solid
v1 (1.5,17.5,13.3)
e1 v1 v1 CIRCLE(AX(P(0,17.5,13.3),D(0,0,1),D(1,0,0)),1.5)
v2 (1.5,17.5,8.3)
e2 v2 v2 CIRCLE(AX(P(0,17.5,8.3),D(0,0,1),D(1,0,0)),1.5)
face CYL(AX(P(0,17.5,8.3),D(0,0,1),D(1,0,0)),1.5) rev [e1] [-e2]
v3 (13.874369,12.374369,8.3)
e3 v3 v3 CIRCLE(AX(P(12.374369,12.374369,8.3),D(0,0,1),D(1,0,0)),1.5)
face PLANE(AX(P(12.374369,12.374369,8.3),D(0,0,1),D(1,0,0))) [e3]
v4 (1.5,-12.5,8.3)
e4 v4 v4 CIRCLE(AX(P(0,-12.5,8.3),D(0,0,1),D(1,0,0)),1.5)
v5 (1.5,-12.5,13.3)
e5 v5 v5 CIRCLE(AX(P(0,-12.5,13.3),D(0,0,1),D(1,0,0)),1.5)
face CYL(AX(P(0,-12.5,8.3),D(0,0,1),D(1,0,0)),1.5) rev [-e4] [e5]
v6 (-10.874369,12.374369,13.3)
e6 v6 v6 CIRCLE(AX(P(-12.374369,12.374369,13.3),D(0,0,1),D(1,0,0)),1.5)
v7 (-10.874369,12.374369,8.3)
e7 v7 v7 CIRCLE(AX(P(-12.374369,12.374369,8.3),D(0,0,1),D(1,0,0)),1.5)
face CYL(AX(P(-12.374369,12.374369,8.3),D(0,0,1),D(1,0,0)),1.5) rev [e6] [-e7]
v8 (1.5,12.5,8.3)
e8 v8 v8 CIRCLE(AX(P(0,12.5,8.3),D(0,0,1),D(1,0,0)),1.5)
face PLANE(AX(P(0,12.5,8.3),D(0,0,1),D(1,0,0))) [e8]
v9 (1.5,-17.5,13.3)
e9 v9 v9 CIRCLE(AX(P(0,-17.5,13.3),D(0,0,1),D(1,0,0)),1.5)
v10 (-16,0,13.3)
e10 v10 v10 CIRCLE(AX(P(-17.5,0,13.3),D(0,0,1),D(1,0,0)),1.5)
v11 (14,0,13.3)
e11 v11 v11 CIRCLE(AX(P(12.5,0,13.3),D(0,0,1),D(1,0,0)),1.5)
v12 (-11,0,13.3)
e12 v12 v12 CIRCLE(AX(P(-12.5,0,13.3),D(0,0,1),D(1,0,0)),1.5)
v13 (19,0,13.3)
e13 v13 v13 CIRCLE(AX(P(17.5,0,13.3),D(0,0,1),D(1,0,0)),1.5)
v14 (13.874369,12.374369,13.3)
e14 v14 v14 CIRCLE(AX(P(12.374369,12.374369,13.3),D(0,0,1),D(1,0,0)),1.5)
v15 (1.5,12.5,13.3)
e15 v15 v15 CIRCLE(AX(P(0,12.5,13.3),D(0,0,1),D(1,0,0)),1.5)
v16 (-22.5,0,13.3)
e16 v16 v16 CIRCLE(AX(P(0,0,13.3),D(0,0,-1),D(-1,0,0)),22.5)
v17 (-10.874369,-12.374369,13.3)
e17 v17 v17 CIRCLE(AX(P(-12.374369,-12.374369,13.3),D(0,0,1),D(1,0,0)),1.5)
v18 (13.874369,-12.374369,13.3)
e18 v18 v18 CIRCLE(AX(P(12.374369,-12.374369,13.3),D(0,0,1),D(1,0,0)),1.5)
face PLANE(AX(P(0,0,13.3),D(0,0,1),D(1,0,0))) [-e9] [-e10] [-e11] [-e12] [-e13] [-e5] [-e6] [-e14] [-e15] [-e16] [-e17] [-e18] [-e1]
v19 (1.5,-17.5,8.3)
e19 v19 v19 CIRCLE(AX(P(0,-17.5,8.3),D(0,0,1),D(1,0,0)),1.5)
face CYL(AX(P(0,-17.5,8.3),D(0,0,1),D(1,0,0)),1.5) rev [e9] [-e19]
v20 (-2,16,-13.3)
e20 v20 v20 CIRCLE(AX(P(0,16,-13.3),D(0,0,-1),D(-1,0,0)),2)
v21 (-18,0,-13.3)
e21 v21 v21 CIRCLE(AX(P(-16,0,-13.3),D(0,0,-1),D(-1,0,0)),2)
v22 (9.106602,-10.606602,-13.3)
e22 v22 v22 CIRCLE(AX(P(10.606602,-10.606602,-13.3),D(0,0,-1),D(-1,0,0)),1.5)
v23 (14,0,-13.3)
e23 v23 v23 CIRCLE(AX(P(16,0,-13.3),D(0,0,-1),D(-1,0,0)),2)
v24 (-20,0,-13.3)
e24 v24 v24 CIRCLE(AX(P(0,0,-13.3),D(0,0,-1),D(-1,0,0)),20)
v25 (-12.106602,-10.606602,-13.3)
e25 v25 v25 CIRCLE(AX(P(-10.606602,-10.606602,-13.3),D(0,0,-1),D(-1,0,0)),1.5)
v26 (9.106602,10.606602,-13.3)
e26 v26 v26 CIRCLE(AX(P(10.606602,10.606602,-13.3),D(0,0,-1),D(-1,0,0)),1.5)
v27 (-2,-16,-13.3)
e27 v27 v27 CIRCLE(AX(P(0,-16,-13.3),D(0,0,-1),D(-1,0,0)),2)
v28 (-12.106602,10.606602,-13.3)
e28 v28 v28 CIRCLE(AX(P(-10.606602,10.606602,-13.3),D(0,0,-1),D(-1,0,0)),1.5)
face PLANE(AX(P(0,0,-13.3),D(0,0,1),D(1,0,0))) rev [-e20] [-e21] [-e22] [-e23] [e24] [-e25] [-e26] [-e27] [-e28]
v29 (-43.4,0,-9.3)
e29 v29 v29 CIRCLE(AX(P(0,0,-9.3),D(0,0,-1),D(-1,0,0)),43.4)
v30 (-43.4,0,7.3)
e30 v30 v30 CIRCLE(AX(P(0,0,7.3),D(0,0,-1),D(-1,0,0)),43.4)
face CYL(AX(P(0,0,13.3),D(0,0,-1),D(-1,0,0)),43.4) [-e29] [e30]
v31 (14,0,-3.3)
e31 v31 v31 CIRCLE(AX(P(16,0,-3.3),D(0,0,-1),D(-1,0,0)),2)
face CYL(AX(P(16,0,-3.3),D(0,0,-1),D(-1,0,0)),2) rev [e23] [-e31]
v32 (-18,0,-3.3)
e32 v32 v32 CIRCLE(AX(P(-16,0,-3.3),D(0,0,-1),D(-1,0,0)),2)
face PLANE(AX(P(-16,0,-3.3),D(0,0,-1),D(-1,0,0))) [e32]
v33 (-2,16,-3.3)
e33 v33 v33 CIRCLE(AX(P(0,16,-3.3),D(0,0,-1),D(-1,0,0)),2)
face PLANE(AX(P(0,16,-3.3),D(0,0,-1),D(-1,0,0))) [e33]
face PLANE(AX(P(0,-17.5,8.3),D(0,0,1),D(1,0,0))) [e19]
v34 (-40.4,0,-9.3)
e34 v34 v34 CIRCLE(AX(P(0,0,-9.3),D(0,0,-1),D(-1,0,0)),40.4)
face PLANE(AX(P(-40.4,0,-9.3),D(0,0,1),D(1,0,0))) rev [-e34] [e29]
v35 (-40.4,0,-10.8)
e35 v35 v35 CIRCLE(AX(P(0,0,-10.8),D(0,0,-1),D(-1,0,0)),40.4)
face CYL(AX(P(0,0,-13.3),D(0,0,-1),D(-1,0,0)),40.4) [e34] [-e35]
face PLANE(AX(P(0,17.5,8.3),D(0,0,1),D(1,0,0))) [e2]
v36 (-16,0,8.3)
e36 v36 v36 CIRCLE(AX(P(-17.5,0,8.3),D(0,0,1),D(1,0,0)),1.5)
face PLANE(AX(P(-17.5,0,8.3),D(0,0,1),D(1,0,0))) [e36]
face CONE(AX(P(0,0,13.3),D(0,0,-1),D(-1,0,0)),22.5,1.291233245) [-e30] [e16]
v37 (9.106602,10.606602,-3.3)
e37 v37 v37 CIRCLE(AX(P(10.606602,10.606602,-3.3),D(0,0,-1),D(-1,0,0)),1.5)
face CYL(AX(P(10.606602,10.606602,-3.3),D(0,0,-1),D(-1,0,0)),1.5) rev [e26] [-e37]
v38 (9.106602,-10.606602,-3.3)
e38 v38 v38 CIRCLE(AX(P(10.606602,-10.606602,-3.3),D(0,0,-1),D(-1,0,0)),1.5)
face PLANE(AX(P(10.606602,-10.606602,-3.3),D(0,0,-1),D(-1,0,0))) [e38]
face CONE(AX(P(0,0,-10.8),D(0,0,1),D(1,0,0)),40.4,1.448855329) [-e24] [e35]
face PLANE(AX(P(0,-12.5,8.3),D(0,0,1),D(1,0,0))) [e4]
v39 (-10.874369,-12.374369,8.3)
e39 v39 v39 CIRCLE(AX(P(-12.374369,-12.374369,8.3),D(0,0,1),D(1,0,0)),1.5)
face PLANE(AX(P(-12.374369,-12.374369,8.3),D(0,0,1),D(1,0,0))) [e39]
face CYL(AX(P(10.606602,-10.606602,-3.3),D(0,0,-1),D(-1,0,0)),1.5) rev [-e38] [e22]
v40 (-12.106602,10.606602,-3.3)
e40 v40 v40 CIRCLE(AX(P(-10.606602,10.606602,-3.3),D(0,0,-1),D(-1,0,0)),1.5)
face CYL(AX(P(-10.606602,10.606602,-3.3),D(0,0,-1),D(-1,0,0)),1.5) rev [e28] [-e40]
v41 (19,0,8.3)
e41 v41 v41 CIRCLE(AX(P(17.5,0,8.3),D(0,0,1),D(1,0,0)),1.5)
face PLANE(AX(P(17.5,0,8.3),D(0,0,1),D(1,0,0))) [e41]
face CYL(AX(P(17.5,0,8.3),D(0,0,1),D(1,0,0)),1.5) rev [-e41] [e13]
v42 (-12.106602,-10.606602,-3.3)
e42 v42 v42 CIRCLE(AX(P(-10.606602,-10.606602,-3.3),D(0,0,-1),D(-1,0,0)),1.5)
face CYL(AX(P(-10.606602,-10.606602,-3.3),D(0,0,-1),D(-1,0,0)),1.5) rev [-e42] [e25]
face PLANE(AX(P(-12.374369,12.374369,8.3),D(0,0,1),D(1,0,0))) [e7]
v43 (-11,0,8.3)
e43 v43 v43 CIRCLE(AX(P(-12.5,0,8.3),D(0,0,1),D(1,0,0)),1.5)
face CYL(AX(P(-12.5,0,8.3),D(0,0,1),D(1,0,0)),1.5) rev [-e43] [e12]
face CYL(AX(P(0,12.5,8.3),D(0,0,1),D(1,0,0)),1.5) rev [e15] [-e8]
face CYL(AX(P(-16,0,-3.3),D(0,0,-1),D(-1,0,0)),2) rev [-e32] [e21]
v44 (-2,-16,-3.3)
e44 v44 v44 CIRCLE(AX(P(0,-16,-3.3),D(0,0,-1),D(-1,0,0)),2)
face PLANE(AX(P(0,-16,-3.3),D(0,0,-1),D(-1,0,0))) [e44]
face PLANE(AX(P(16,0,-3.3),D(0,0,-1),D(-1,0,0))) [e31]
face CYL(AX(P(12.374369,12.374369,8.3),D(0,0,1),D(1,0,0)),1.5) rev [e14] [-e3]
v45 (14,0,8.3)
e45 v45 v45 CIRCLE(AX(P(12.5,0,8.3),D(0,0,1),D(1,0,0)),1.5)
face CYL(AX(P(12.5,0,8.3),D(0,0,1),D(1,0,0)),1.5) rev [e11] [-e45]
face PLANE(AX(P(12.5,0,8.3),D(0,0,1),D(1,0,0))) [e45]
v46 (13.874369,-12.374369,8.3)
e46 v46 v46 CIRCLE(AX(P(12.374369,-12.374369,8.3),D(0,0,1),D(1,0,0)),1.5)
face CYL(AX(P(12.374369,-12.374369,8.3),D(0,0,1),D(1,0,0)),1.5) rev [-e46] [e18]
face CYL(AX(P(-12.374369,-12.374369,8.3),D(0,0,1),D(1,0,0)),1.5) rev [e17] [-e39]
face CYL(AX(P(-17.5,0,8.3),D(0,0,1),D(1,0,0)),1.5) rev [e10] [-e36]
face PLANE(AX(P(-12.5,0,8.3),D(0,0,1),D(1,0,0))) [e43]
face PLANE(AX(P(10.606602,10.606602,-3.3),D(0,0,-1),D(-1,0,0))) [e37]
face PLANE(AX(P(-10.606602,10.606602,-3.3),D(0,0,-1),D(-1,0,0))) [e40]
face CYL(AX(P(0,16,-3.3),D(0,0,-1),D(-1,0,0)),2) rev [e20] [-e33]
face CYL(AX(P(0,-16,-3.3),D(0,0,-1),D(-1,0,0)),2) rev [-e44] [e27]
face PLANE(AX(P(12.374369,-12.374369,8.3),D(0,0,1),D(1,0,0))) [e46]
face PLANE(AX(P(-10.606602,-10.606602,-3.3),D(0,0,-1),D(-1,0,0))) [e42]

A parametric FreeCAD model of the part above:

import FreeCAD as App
import Part
import Sketcher
from FreeCAD import Vector

doc = App.newDocument("Part")
params = doc.addObject("Spreadsheet::Sheet", "Params")
for row, (alias, value) in enumerate([
    ("sketch1_diameter", "86.8 mm"),
    ("pad1_length", "26.6 mm"),
    ("sketch2_width", "3 mm"),
    ("sketch2_height", "6 mm"),
    ("sketch2_height2", "4 mm"),
    ("sketch2_width2", "20.9 mm"),
    ("sketch2_width3", "23.4 mm"),
    ("groove_angle", "360 deg"),
    ("sketch3_diameter", "3 mm"),
    ("sketch3_diameter2", "4 mm"),
    ("pocket1_length", "10 mm"),
    ("sketch4_diameter", "3 mm"),
    ("pocket2_length", "5 mm"),
], start=1):
    params.set(f"A{row}", alias)
    params.set(f"B{row}", "=" + value)
    params.setAlias(f"B{row}", alias)

body = doc.addObject("PartDesign::Body", "Body")

sketch1 = body.newObject("Sketcher::SketchObject", "Sketch")
sketch1.AttachmentSupport = (doc.getObject("XY_Plane"), [""])
sketch1.MapMode = "FlatFace"
sketch1.addGeometry(Part.Circle(Vector(0, 0, 0), Vector(0, 0, 1), 43), False)
sketch1.addConstraint([
    Sketcher.Constraint("Coincident", 0, 3, -1, 1),
    Sketcher.Constraint("Diameter", 0, 86.8),
])
sketch1.setExpression("Constraints[1]", "Params.sketch1_diameter")
pad1 = body.newObject("PartDesign::Pad", "Pad")
pad1.Profile = sketch1
pad1.setExpression("Length", "Params.pad1_length")
pad1.Midplane = True

sketch2 = body.newObject("Sketcher::SketchObject", "Sketch001")
sketch2.AttachmentSupport = (doc.getObject("XZ_Plane"), [""])
sketch2.MapMode = "FlatFace"
sketch2.addGeometry([
    Part.LineSegment(Vector(-22.5, 13.3, 0), Vector(-43.4, 7.3, 0)),
    Part.LineSegment(Vector(-43.4, 7.3, 0), Vector(-43.4, 13.3, 0)),
    Part.LineSegment(Vector(-43.4, 13.3, 0), Vector(-22.5, 13.3, 0)),
    Part.LineSegment(Vector(-43.4, -13.3, 0), Vector(-43.4, -9.3, 0)),
    Part.LineSegment(Vector(-43.4, -9.3, 0), Vector(-40.4, -9.3, 0)),
    Part.LineSegment(Vector(-40.4, -9.3, 0), Vector(-40.4, -10.8, 0)),
    Part.LineSegment(Vector(-40.4, -10.8, 0), Vector(-20, -13.3, 0)),
    Part.LineSegment(Vector(-20, -13.3, 0), Vector(-43.4, -13.3, 0)),
], False)
sketch2.addConstraint([
    Sketcher.Constraint("Coincident", 0, 2, 1, 1),
    Sketcher.Constraint("Coincident", 1, 2, 2, 1),
    Sketcher.Constraint("Coincident", 2, 2, 0, 1),
    Sketcher.Constraint("Coincident", 3, 2, 4, 1),
    Sketcher.Constraint("Coincident", 4, 2, 5, 1),
    Sketcher.Constraint("Coincident", 5, 2, 6, 1),
    Sketcher.Constraint("Coincident", 6, 2, 7, 1),
    Sketcher.Constraint("Coincident", 7, 2, 3, 1),
    Sketcher.Constraint("Vertical", 1),
    Sketcher.Constraint("Horizontal", 2),
    Sketcher.Constraint("Vertical", 3),
    Sketcher.Constraint("Horizontal", 4),
    Sketcher.Constraint("Vertical", 5),
    Sketcher.Constraint("Horizontal", 7),
    Sketcher.Constraint("Symmetric", 1, 2, 7, 2, -1),
    Sketcher.Constraint("DistanceX", 4, 1, 4, 2, 3.0),
    Sketcher.Constraint("DistanceY", 1, 1, 1, 2, 6.0),
    Sketcher.Constraint("DistanceY", 3, 1, 3, 2, 4.0),
    Sketcher.Constraint("DistanceX", 2, 1, 2, 2, 20.9),
    Sketcher.Constraint("DistanceX", 7, 2, 7, 1, 23.4),
    Sketcher.Constraint("DistanceY", 5, 2, 5, 1, 1.5),
    Sketcher.Constraint("DistanceX", 6, 2, -1, 1, 20.0),
    Sketcher.Constraint("DistanceY", -1, 1, 0, 2, 7.3),
])
sketch2.setExpression("Constraints[15]", "Params.sketch2_width")
sketch2.setExpression("Constraints[16]", "Params.sketch2_height")
sketch2.setExpression("Constraints[17]", "Params.sketch2_height2")
sketch2.setExpression("Constraints[18]", "Params.sketch2_width2")
sketch2.setExpression("Constraints[19]", "Params.sketch2_width3")
groove = body.newObject("PartDesign::Groove", "Groove")
groove.Profile = sketch2
groove.ReferenceAxis = (sketch2, ["V_Axis"])
groove.setExpression("Angle", "Params.groove_angle")

sketch3 = body.newObject("Sketcher::SketchObject", "Sketch002")
sketch3.AttachmentSupport = (doc.getObject("XY_Plane"), [""])
sketch3.MapMode = "FlatFace"
sketch3.AttachmentOffset = App.Placement(Vector(0, 0, -13.3), App.Rotation())
sketch3.addGeometry([
    Part.Circle(Vector(-10.6, 10.6, 0), Vector(0, 0, 1), 1.5),
    Part.Circle(Vector(-10.6, -10.6, 0), Vector(0, 0, 1), 1.5),
    Part.Circle(Vector(10.6, -10.6, 0), Vector(0, 0, 1), 1.5),
    Part.Circle(Vector(10.6, 10.6, 0), Vector(0, 0, 1), 1.5),
    Part.Circle(Vector(0, 16, 0), Vector(0, 0, 1), 2),
    Part.Circle(Vector(-16, 0, 0), Vector(0, 0, 1), 2),
    Part.Circle(Vector(0, -16, 0), Vector(0, 0, 1), 2),
    Part.Circle(Vector(16, 0, 0), Vector(0, 0, 1), 2),
], False)
sketch3.addConstraint([
    Sketcher.Constraint("Equal", 0, 1),
    Sketcher.Constraint("Equal", 1, 2),
    Sketcher.Constraint("Equal", 2, 3),
    Sketcher.Constraint("Equal", 4, 5),
    Sketcher.Constraint("Equal", 5, 6),
    Sketcher.Constraint("Equal", 6, 7),
    Sketcher.Constraint("Symmetric", 0, 3, 2, 3, -1, 1),
    Sketcher.Constraint("Symmetric", 1, 3, 3, 3, -1, 1),
    Sketcher.Constraint("Symmetric", 4, 3, 6, 3, -1, 1),
    Sketcher.Constraint("Symmetric", 5, 3, 7, 3, -1, 1),
    Sketcher.Constraint("Symmetric", 1, 3, 2, 3, -2),
    Sketcher.Constraint("PointOnObject", 4, 3, -2),
    Sketcher.Constraint("PointOnObject", 5, 3, -1),
    Sketcher.Constraint("Diameter", 0, 3.0),
    Sketcher.Constraint("Diameter", 4, 4.0),
    Sketcher.Constraint("DistanceY", -1, 1, 4, 3, 16.0),
    Sketcher.Constraint("DistanceX", 5, 3, -1, 1, 16.0),
    Sketcher.Constraint("DistanceX", 0, 3, -1, 1, 10.606602),
    Sketcher.Constraint("DistanceY", -1, 1, 0, 3, 10.606602),
])
sketch3.setExpression("Constraints[13]", "Params.sketch3_diameter")
sketch3.setExpression("Constraints[14]", "Params.sketch3_diameter2")
pocket1 = body.newObject("PartDesign::Pocket", "Pocket")
pocket1.Profile = sketch3
pocket1.setExpression("Length", "Params.pocket1_length")
pocket1.Reversed = True

sketch4 = body.newObject("Sketcher::SketchObject", "Sketch003")
sketch4.AttachmentSupport = (doc.getObject("XY_Plane"), [""])
sketch4.MapMode = "FlatFace"
sketch4.AttachmentOffset = App.Placement(Vector(0, 0, 13.3), App.Rotation())
sketch4.addGeometry([
    Part.Circle(Vector(0, 17.5, 0), Vector(0, 0, 1), 1.5),
    Part.Circle(Vector(0, 12.5, 0), Vector(0, 0, 1), 1.5),
    Part.Circle(Vector(12.4, 12.4, 0), Vector(0, 0, 1), 1.5),
    Part.Circle(Vector(17.5, 0, 0), Vector(0, 0, 1), 1.5),
    Part.Circle(Vector(12.4, -12.4, 0), Vector(0, 0, 1), 1.5),
    Part.Circle(Vector(0, -17.5, 0), Vector(0, 0, 1), 1.5),
    Part.Circle(Vector(-12.4, -12.4, 0), Vector(0, 0, 1), 1.5),
    Part.Circle(Vector(-17.5, 0, 0), Vector(0, 0, 1), 1.5),
    Part.Circle(Vector(-12.4, 12.4, 0), Vector(0, 0, 1), 1.5),
    Part.Circle(Vector(12.5, 0, 0), Vector(0, 0, 1), 1.5),
    Part.Circle(Vector(0, -12.5, 0), Vector(0, 0, 1), 1.5),
    Part.Circle(Vector(-12.5, 0, 0), Vector(0, 0, 1), 1.5),
], False)
sketch4.addConstraint([
    Sketcher.Constraint("Equal", 0, 1),
    Sketcher.Constraint("Equal", 1, 2),
    Sketcher.Constraint("Equal", 2, 3),
    Sketcher.Constraint("Equal", 3, 4),
    Sketcher.Constraint("Equal", 4, 5),
    Sketcher.Constraint("Equal", 5, 6),
    Sketcher.Constraint("Equal", 6, 7),
    Sketcher.Constraint("Equal", 7, 8),
    Sketcher.Constraint("Equal", 8, 9),
    Sketcher.Constraint("Equal", 9, 10),
    Sketcher.Constraint("Equal", 10, 11),
    Sketcher.Constraint("Symmetric", 0, 3, 5, 3, -1, 1),
    Sketcher.Constraint("Symmetric", 2, 3, 6, 3, -1, 1),
    Sketcher.Constraint("Symmetric", 3, 3, 7, 3, -1, 1),
    Sketcher.Constraint("Symmetric", 4, 3, 8, 3, -1, 1),
    Sketcher.Constraint("Symmetric", 1, 3, 10, 3, -1, 1),
    Sketcher.Constraint("Symmetric", 9, 3, 11, 3, -1, 1),
    Sketcher.Constraint("Symmetric", 4, 3, 6, 3, -2),
    Sketcher.Constraint("PointOnObject", 0, 3, -2),
    Sketcher.Constraint("PointOnObject", 1, 3, -2),
    Sketcher.Constraint("PointOnObject", 3, 3, -1),
    Sketcher.Constraint("PointOnObject", 9, 3, -1),
    Sketcher.Constraint("Diameter", 0, 3.0),
    Sketcher.Constraint("DistanceY", 1, 3, 0, 3, 5.0),
    Sketcher.Constraint("DistanceY", 5, 3, 1, 3, 30.0),
    Sketcher.Constraint("DistanceX", 9, 3, 3, 3, 5.0),
    Sketcher.Constraint("DistanceX", -1, 1, 3, 3, 17.5),
    Sketcher.Constraint("DistanceX", -1, 1, 2, 3, 12.374369),
    Sketcher.Constraint("DistanceY", -1, 1, 2, 3, 12.374369),
])
sketch4.setExpression("Constraints[22]", "Params.sketch4_diameter")
pocket2 = body.newObject("PartDesign::Pocket", "Pocket001")
pocket2.Profile = sketch4
pocket2.setExpression("Length", "Params.pocket2_length")

doc.recompute()
